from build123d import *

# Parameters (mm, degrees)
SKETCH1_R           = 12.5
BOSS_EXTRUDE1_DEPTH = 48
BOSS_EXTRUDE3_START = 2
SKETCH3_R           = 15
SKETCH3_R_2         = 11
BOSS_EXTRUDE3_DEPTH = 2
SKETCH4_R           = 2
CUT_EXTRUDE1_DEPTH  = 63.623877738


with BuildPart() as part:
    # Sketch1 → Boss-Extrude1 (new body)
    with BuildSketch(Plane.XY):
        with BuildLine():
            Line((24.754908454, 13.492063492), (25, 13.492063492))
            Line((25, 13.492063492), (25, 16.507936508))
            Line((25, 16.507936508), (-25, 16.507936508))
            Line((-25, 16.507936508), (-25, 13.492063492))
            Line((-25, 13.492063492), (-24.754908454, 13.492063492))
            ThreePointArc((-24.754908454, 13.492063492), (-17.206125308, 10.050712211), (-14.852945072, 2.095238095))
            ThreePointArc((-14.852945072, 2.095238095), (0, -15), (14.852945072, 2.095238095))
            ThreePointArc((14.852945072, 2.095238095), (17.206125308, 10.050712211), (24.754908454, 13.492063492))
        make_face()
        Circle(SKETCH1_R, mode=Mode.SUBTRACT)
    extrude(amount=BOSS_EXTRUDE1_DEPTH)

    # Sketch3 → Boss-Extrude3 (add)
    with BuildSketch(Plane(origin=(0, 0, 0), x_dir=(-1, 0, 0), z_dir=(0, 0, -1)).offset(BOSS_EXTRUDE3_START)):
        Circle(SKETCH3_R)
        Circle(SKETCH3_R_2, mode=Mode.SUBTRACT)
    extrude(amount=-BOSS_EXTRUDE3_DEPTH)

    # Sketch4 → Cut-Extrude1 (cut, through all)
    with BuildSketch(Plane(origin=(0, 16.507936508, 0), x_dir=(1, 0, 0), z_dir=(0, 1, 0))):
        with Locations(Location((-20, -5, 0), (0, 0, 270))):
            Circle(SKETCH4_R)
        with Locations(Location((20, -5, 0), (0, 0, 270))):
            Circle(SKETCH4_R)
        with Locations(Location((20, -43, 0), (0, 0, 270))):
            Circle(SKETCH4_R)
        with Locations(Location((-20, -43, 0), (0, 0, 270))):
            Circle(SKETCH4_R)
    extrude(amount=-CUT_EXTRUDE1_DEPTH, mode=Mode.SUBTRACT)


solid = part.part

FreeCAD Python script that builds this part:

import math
import FreeCAD as App
import Part
import Sketcher
from FreeCAD import Vector
Q = App.Units.Quantity

doc = App.newDocument("Part")
params = doc.addObject("Spreadsheet::Sheet", "Params")
for row, (alias, value) in enumerate([
    ("sketch1_diameter", "25 mm"),
    ("sketch1_radius", "10 mm"),
    ("sketch1_radius2", "15 mm"),
    ("sketch1_width", "50 mm"),
    ("pad1_length", "48 mm"),
    ("sketch2_diameter", "30 mm"),
    ("sketch2_diameter2", "22 mm"),
    ("pad2_length", "2 mm"),
    ("sketch3_diameter", "4 mm"),
], start=1):
    params.set(f"A{row}", alias)
    params.set(f"B{row}", "=" + value)
    params.setAlias(f"B{row}", alias)

body = doc.addObject("PartDesign::Body", "Body")

sketch1 = doc.addObject("Sketcher::SketchObject", "Sketch")
body.addObject(sketch1)
sketch1.AttachmentSupport = (doc.XY_Plane, [""])
sketch1.MapMode = "FlatFace"
sketch1.addGeometry([
    Part.LineSegment(Vector(24.75, 13.49, 0), Vector(25, 13.49, 0)),
    Part.LineSegment(Vector(25, 13.49, 0), Vector(25, 16.51, 0)),
    Part.LineSegment(Vector(25, 16.51, 0), Vector(-25, 16.51, 0)),
    Part.LineSegment(Vector(-25, 16.51, 0), Vector(-25, 13.49, 0)),
    Part.LineSegment(Vector(-25, 13.49, 0), Vector(-24.75, 13.49, 0)),
    Part.ArcOfCircle(Part.Circle(Vector(-24.75, 3.49, 0), Vector(0, 0, 1), 10), math.radians(-8), math.radians(90)),
    Part.ArcOfCircle(Part.Circle(Vector(0, 0, 0), Vector(0, 0, 1), 15), math.radians(172), math.radians(368)),
    Part.ArcOfCircle(Part.Circle(Vector(24.75, 3.49, 0), Vector(0, 0, 1), 10), math.radians(90), math.radians(188)),
    Part.Circle(Vector(0, 0, 0), Vector(0, 0, 1), 12.5),
], False)
sketch1.addConstraint([
    Sketcher.Constraint("Coincident", 0, 2, 1, 1),
    Sketcher.Constraint("Coincident", 1, 2, 2, 1),
    Sketcher.Constraint("Coincident", 2, 2, 3, 1),
    Sketcher.Constraint("Coincident", 3, 2, 4, 1),
    Sketcher.Constraint("Tangent", 4, 2, 5, 2),
    Sketcher.Constraint("Tangent", 5, 1, 6, 1),
    Sketcher.Constraint("Tangent", 6, 2, 7, 2),
    Sketcher.Constraint("Tangent", 7, 1, 0, 1),
    Sketcher.Constraint("Horizontal", 0),
    Sketcher.Constraint("Vertical", 1),
    Sketcher.Constraint("Horizontal", 2),
    Sketcher.Constraint("Vertical", 3),
    Sketcher.Constraint("Horizontal", 4),
    Sketcher.Constraint("Coincident", 6, 3, -1, 1),
    Sketcher.Constraint("Coincident", 8, 3, -1, 1),
    Sketcher.Constraint("Equal", 5, 7),
    Sketcher.Constraint("Symmetric", 0, 2, 3, 2, -2),
    Sketcher.Constraint("Diameter", 8, Q("25 mm")),
    Sketcher.Constraint("Radius", 5, Q("10 mm")),
    Sketcher.Constraint("Radius", 6, Q("15 mm")),
    Sketcher.Constraint("DistanceX", 2, 2, 2, 1, Q("50 mm")),
    Sketcher.Constraint("DistanceX", 0, 1, 0, 2, Q("0.245092 mm")),
    Sketcher.Constraint("DistanceY", 6, 2, 1, 2, Q("14.412698 mm")),
])
sketch1.setExpression("Constraints[17]", "Params.sketch1_diameter")
sketch1.setExpression("Constraints[18]", "Params.sketch1_radius")
sketch1.setExpression("Constraints[19]", "Params.sketch1_radius2")
sketch1.setExpression("Constraints[20]", "Params.sketch1_width")
pad1 = doc.addObject("PartDesign::Pad", "Pad")
body.addObject(pad1)
pad1.Profile = sketch1
pad1.setExpression("Length", "Params.pad1_length")

sketch2 = doc.addObject("Sketcher::SketchObject", "Sketch001")
body.addObject(sketch2)
sketch2.AttachmentSupport = (doc.XY_Plane, [""])
sketch2.MapMode = "FlatFace"
sketch2.AttachmentOffset = App.Placement(Vector(0, 0, -2), App.Rotation())
sketch2.addGeometry([
    Part.Circle(Vector(0, 0, 0), Vector(0, 0, 1), 15),
    Part.Circle(Vector(0, 0, 0), Vector(0, 0, 1), 11),
], False)
sketch2.addConstraint([
    Sketcher.Constraint("Coincident", 0, 3, -1, 1),
    Sketcher.Constraint("Coincident", 1, 3, -1, 1),
    Sketcher.Constraint("Diameter", 0, Q("30 mm")),
    Sketcher.Constraint("Diameter", 1, Q("22 mm")),
])
sketch2.setExpression("Constraints[2]", "Params.sketch2_diameter")
sketch2.setExpression("Constraints[3]", "Params.sketch2_diameter2")
pad2 = doc.addObject("PartDesign::Pad", "Pad001")
body.addObject(pad2)
pad2.Profile = sketch2
pad2.setExpression("Length", "Params.pad2_length")

sketch3 = doc.addObject("Sketcher::SketchObject", "Sketch002")
body.addObject(sketch3)
sketch3.AttachmentSupport = (doc.XZ_Plane, [""])
sketch3.MapMode = "FlatFace"
sketch3.AttachmentOffset = App.Placement(Vector(0, 0, -16.507937), App.Rotation())
sketch3.addGeometry([
    Part.Circle(Vector(-20, 5, 0), Vector(0, 0, 1), 2),
    Part.Circle(Vector(20, 5, 0), Vector(0, 0, 1), 2),
    Part.Circle(Vector(20, 43, 0), Vector(0, 0, 1), 2),
    Part.Circle(Vector(-20, 43, 0), Vector(0, 0, 1), 2),
], False)
sketch3.addConstraint([
    Sketcher.Constraint("Equal", 0, 1),
    Sketcher.Constraint("Equal", 1, 2),
    Sketcher.Constraint("Equal", 2, 3),
    Sketcher.Constraint("Symmetric", 0, 3, 1, 3, -2),
    Sketcher.Constraint("Symmetric", 2, 3, 3, 3, -2),
    Sketcher.Constraint("Vertical", 1, 3, 2, 3),
    Sketcher.Constraint("Diameter", 0, Q("4 mm")),
    Sketcher.Constraint("DistanceX", 0, 3, -1, 1, Q("20 mm")),
    Sketcher.Constraint("DistanceY", -1, 1, 0, 3, Q("5 mm")),
    Sketcher.Constraint("DistanceY", -1, 1, 2, 3, Q("43 mm")),
])
sketch3.setExpression("Constraints[6]", "Params.sketch3_diameter")
pocket1 = doc.addObject("PartDesign::Pocket", "Pocket")
body.addObject(pocket1)
pocket1.Profile = sketch3
pocket1.Type = "ThroughAll"
pocket1.Reversed = True

doc.recompute()
